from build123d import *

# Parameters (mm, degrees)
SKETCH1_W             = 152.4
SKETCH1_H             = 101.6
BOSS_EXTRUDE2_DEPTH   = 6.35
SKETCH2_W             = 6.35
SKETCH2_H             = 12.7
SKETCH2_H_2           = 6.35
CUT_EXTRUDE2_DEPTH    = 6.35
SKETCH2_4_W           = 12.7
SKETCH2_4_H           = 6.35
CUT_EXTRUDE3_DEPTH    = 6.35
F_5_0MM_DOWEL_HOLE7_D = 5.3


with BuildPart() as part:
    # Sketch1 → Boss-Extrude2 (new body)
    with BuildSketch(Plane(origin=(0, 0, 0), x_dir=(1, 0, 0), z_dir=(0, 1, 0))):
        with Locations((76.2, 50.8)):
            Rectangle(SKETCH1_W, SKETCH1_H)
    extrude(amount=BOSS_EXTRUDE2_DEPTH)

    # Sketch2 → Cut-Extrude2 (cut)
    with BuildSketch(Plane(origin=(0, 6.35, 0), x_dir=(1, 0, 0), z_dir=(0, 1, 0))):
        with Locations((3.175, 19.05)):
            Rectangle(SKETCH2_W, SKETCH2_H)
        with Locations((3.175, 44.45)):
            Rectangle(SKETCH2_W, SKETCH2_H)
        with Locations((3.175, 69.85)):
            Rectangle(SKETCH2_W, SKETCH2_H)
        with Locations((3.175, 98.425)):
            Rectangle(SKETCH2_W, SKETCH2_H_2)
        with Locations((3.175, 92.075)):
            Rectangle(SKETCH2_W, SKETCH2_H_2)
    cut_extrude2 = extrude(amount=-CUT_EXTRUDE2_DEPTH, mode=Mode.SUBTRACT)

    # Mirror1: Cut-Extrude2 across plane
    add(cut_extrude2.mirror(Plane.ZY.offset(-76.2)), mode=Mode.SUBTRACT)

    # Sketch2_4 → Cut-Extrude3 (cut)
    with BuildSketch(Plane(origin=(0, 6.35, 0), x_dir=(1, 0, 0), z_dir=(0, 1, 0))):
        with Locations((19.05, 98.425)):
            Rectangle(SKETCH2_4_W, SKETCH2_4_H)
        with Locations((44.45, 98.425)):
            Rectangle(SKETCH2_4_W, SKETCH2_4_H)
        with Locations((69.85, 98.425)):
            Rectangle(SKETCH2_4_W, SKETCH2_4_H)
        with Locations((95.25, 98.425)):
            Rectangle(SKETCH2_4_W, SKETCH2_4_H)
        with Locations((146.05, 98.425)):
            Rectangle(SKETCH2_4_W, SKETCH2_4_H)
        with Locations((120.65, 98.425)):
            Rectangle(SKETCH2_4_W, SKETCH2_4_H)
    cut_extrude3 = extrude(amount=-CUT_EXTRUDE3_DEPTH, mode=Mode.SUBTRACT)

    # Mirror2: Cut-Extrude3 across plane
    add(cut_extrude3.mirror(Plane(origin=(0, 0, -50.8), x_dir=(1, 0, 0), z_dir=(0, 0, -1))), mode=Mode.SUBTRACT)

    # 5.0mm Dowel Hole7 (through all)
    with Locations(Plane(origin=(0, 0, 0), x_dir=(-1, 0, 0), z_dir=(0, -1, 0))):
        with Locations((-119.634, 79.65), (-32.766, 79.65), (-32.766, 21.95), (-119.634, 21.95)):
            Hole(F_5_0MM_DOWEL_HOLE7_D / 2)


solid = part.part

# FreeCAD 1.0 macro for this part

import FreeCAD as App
import Part
import Sketcher

V = App.Vector
Q = App.Units.Quantity


def add_polygon(sketch, points):
    """Adds a closed chain of lines whose ends are joined by coincident constraints."""
    first, n = sketch.GeometryCount, len(points)
    for a, b in zip(points, points[1:] + points[:1]):
        sketch.addGeometry(Part.LineSegment(App.Vector(*a, 0), App.Vector(*b, 0)), False)
    for i in range(n):
        sketch.addConstraint(Sketcher.Constraint("Coincident", first + i, 2, first + (i + 1) % n, 1))

doc = App.newDocument("Part")
params = doc.addObject("Spreadsheet::Sheet", "Params")
for row, (alias, value) in enumerate([
    ("sketch1_width", "6 in"),
    ("sketch1_height", "4 in"),
    ("pad1_length", "0.25 in"),
    ("sketch2_height", "0.5 in"),
    ("sketch2_width", "0.25 in"),
    ("pocket1_length", "0.25 in"),
    ("sketch3_width", "0.5 in"),
    ("sketch3_height", "0.25 in"),
    ("pocket2_length", "0.25 in"),
    ("hole_diameter", "5.3 mm"),
], start=1):
    params.set(f"A{row}", alias)
    params.set(f"B{row}", "=" + value)
    params.setAlias(f"B{row}", alias)

body = doc.addObject("PartDesign::Body", "Body")

sketch1 = body.newObject("Sketcher::SketchObject", "Sketch")
sketch1.AttachmentSupport = (doc.getObject("XZ_Plane"), [""])
sketch1.MapMode = "FlatFace"
add_polygon(sketch1, [(0, -102), (0, 0), (152, 0), (152, -102)])
sketch1.addConstraint(Sketcher.Constraint("Vertical", 0))
sketch1.addConstraint(Sketcher.Constraint("Horizontal", 1))
sketch1.addConstraint(Sketcher.Constraint("Vertical", 2))
sketch1.addConstraint(Sketcher.Constraint("Horizontal", 3))
sketch1.addConstraint(Sketcher.Constraint("Coincident", 0, 2, -1, 1))
sketch1.addConstraint(Sketcher.Constraint("DistanceX", 1, 1, 1, 2, Q("6 in")))
sketch1.addConstraint(Sketcher.Constraint("DistanceY", 0, 1, 0, 2, Q("4 in")))
sketch1.setExpression("Constraints[9]", "Params.sketch1_width")
sketch1.setExpression("Constraints[10]", "Params.sketch1_height")
pad1 = body.newObject("PartDesign::Pad", "Pad")
pad1.Profile = sketch1
pad1.setExpression("Length", "Params.pad1_length")
pad1.Reversed = True

sketch2 = body.newObject("Sketcher::SketchObject", "Sketch001")
sketch2.AttachmentSupport = (doc.getObject("XZ_Plane"), [""])
sketch2.MapMode = "FlatFace"
sketch2.AttachmentOffset = App.Placement(V(0, 0, -0.25 * 25.4), App.Rotation())
add_polygon(sketch2, [(0, -25), (0, -13), (6, -13), (6, -25)])
add_polygon(sketch2, [(0, -51), (0, -38), (6, -38), (6, -51)])
add_polygon(sketch2, [(0, -76), (0, -64), (6, -64), (6, -76)])
add_polygon(sketch2, [(0, -102), (0, -89), (6, -89), (6, -102)])
sketch2.addConstraint(Sketcher.Constraint("Vertical", 0))
sketch2.addConstraint(Sketcher.Constraint("Horizontal", 1))
sketch2.addConstraint(Sketcher.Constraint("Vertical", 2))
sketch2.addConstraint(Sketcher.Constraint("Horizontal", 3))
sketch2.addConstraint(Sketcher.Constraint("Vertical", 4))
sketch2.addConstraint(Sketcher.Constraint("Horizontal", 5))
sketch2.addConstraint(Sketcher.Constraint("Vertical", 6))
sketch2.addConstraint(Sketcher.Constraint("Horizontal", 7))
sketch2.addConstraint(Sketcher.Constraint("Vertical", 8))
sketch2.addConstraint(Sketcher.Constraint("Horizontal", 9))
sketch2.addConstraint(Sketcher.Constraint("Vertical", 10))
sketch2.addConstraint(Sketcher.Constraint("Horizontal", 11))
sketch2.addConstraint(Sketcher.Constraint("Vertical", 12))
sketch2.addConstraint(Sketcher.Constraint("Horizontal", 13))
sketch2.addConstraint(Sketcher.Constraint("Vertical", 14))
sketch2.addConstraint(Sketcher.Constraint("Horizontal", 15))
sketch2.addConstraint(Sketcher.Constraint("PointOnObject", 0, 2, -2))
sketch2.addConstraint(Sketcher.Constraint("PointOnObject", 4, 2, -2))
sketch2.addConstraint(Sketcher.Constraint("PointOnObject", 8, 2, -2))
sketch2.addConstraint(Sketcher.Constraint("PointOnObject", 12, 2, -2))
sketch2.addConstraint(Sketcher.Constraint("Vertical", 2, 2, 5, 2))
sketch2.addConstraint(Sketcher.Constraint("Vertical", 6, 2, 9, 2))
sketch2.addConstraint(Sketcher.Constraint("Vertical", 10, 2, 13, 2))
sketch2.addConstraint(Sketcher.Constraint("Equal", 2, 4))
sketch2.addConstraint(Sketcher.Constraint("Equal", 6, 8))
sketch2.addConstraint(Sketcher.Constraint("Equal", 10, 12))
sketch2.addConstraint(Sketcher.Constraint("DistanceY", 0, 1, 0, 2, Q("0.5 in")))
sketch2.addConstraint(Sketcher.Constraint("DistanceY", 2, 2, -1, 1, Q("1 in")))
sketch2.addConstraint(Sketcher.Constraint("DistanceY", 6, 2, -1, 1, Q("2 in")))
sketch2.addConstraint(Sketcher.Constraint("DistanceY", 10, 2, -1, 1, Q("3 in")))
sketch2.addConstraint(Sketcher.Constraint("DistanceY", 14, 2, -1, 1, Q("4 in")))
sketch2.addConstraint(Sketcher.Constraint("DistanceX", 1, 1, 1, 2, Q("0.25 in")))
sketch2.setExpression("Constraints[42]", "Params.sketch2_height")
sketch2.setExpression("Constraints[47]", "Params.sketch2_width")
pocket1 = body.newObject("PartDesign::Pocket", "Pocket")
pocket1.Profile = sketch2
pocket1.setExpression("Length", "Params.pocket1_length")
pocket1.Reversed = True
doc.recompute()

datumplane = body.newObject("PartDesign::Plane", "DatumPlane")
datumplane.AttachmentSupport = (doc.getObject("YZ_Plane"), [""])
datumplane.MapMode = "FlatFace"
datumplane.AttachmentOffset = App.Placement(V(0, 0, 3 * 25.4), App.Rotation())
mirrored = body.newObject("PartDesign::Mirrored", "Mirrored")
mirrored.Originals = [pocket1]
mirrored.MirrorPlane = (datumplane, [""])
body.Tip = mirrored

sketch3 = body.newObject("Sketcher::SketchObject", "Sketch002")
sketch3.AttachmentSupport = (doc.getObject("XZ_Plane"), [""])
sketch3.MapMode = "FlatFace"
sketch3.AttachmentOffset = App.Placement(V(0, 0, -0.25 * 25.4), App.Rotation())
add_polygon(sketch3, [(13, -102), (13, -95), (25, -95), (25, -102)])
add_polygon(sketch3, [(38, -102), (38, -95), (51, -95), (51, -102)])
add_polygon(sketch3, [(64, -102), (64, -95), (76, -95), (76, -102)])
add_polygon(sketch3, [(89, -102), (89, -95), (102, -95), (102, -102)])
add_polygon(sketch3, [(140, -102), (140, -95), (152, -95), (152, -102)])
add_polygon(sketch3, [(114, -102), (114, -95), (127, -95), (127, -102)])
sketch3.addConstraint(Sketcher.Constraint("Vertical", 0))
sketch3.addConstraint(Sketcher.Constraint("Horizontal", 1))
sketch3.addConstraint(Sketcher.Constraint("Vertical", 2))
sketch3.addConstraint(Sketcher.Constraint("Horizontal", 3))
sketch3.addConstraint(Sketcher.Constraint("Vertical", 4))
sketch3.addConstraint(Sketcher.Constraint("Horizontal", 5))
sketch3.addConstraint(Sketcher.Constraint("Vertical", 6))
sketch3.addConstraint(Sketcher.Constraint("Horizontal", 7))
sketch3.addConstraint(Sketcher.Constraint("Vertical", 8))
sketch3.addConstraint(Sketcher.Constraint("Horizontal", 9))
sketch3.addConstraint(Sketcher.Constraint("Vertical", 10))
sketch3.addConstraint(Sketcher.Constraint("Horizontal", 11))
sketch3.addConstraint(Sketcher.Constraint("Vertical", 12))
sketch3.addConstraint(Sketcher.Constraint("Horizontal", 13))
sketch3.addConstraint(Sketcher.Constraint("Vertical", 14))
sketch3.addConstraint(Sketcher.Constraint("Horizontal", 15))
sketch3.addConstraint(Sketcher.Constraint("Vertical", 16))
sketch3.addConstraint(Sketcher.Constraint("Horizontal", 17))
sketch3.addConstraint(Sketcher.Constraint("Vertical", 18))
sketch3.addConstraint(Sketcher.Constraint("Horizontal", 19))
sketch3.addConstraint(Sketcher.Constraint("Vertical", 20))
sketch3.addConstraint(Sketcher.Constraint("Horizontal", 21))
sketch3.addConstraint(Sketcher.Constraint("Vertical", 22))
sketch3.addConstraint(Sketcher.Constraint("Horizontal", 23))
sketch3.addConstraint(Sketcher.Constraint("Horizontal", 1, 2, 4, 2))
sketch3.addConstraint(Sketcher.Constraint("Horizontal", 3, 2, 6, 2))
sketch3.addConstraint(Sketcher.Constraint("Horizontal", 5, 2, 8, 2))
sketch3.addConstraint(Sketcher.Constraint("Horizontal", 7, 2, 10, 2))
sketch3.addConstraint(Sketcher.Constraint("Horizontal", 9, 2, 12, 2))
sketch3.addConstraint(Sketcher.Constraint("Horizontal", 11, 2, 14, 2))
sketch3.addConstraint(Sketcher.Constraint("Horizontal", 13, 2, 16, 2))
sketch3.addConstraint(Sketcher.Constraint("Horizontal", 15, 2, 18, 2))
sketch3.addConstraint(Sketcher.Constraint("Horizontal", 17, 2, 20, 2))
sketch3.addConstraint(Sketcher.Constraint("Horizontal", 19, 2, 22, 2))
sketch3.addConstraint(Sketcher.Constraint("Equal", 3, 5))
sketch3.addConstraint(Sketcher.Constraint("Equal", 7, 9))
sketch3.addConstraint(Sketcher.Constraint("Equal", 11, 13))
sketch3.addConstraint(Sketcher.Constraint("Equal", 15, 17))
sketch3.addConstraint(Sketcher.Constraint("Equal", 19, 21))
sketch3.addConstraint(Sketcher.Constraint("DistanceX", 1, 1, 1, 2, Q("0.5 in")))
sketch3.addConstraint(Sketcher.Constraint("DistanceX", -1, 1, 1, 2, Q("1 in")))
sketch3.addConstraint(Sketcher.Constraint("DistanceY", 2, 2, -1, 1, Q("4 in")))
sketch3.addConstraint(Sketcher.Constraint("DistanceX", -1, 1, 5, 2, Q("2 in")))
sketch3.addConstraint(Sketcher.Constraint("DistanceX", -1, 1, 9, 2, Q("3 in")))
sketch3.addConstraint(Sketcher.Constraint("DistanceX", -1, 1, 13, 2, Q("4 in")))
sketch3.addConstraint(Sketcher.Constraint("DistanceX", -1, 1, 17, 2, Q("6 in")))
sketch3.addConstraint(Sketcher.Constraint("DistanceX", -1, 1, 21, 2, Q("5 in")))
sketch3.addConstraint(Sketcher.Constraint("DistanceY", 0, 1, 0, 2, Q("0.25 in")))
sketch3.setExpression("Constraints[63]", "Params.sketch3_width")
sketch3.setExpression("Constraints[71]", "Params.sketch3_height")
pocket2 = body.newObject("PartDesign::Pocket", "Pocket001")
pocket2.Profile = sketch3
pocket2.setExpression("Length", "Params.pocket2_length")
pocket2.Reversed = True
doc.recompute()

datumplane2 = body.newObject("PartDesign::Plane", "DatumPlane001")
datumplane2.AttachmentSupport = (doc.getObject("XY_Plane"), [""])
datumplane2.MapMode = "FlatFace"
datumplane2.AttachmentOffset = App.Placement(V(0, 0, -2 * 25.4), App.Rotation())
mirrored2 = body.newObject("PartDesign::Mirrored", "Mirrored001")
mirrored2.Originals = [pocket2]
mirrored2.MirrorPlane = (datumplane2, [""])
body.Tip = mirrored2

sketch4 = body.newObject("Sketcher::SketchObject", "Sketch003")
sketch4.AttachmentSupport = (doc.getObject("XZ_Plane"), [""])
sketch4.MapMode = "FlatFace"
sketch4.addGeometry(Part.Circle(V(119.6, -79.7, 0), V(0, 0, 1), 2.6), False)
sketch4.addGeometry(Part.Circle(V(32.8, -79.7, 0), V(0, 0, 1), 2.6), False)
sketch4.addGeometry(Part.Circle(V(32.8, -21.9, 0), V(0, 0, 1), 2.6), False)
sketch4.addGeometry(Part.Circle(V(119.6, -21.9, 0), V(0, 0, 1), 2.6), False)
sketch4.addConstraint(Sketcher.Constraint("Equal", 0, 1))
sketch4.addConstraint(Sketcher.Constraint("Equal", 1, 2))
sketch4.addConstraint(Sketcher.Constraint("Equal", 2, 3))
sketch4.addConstraint(Sketcher.Constraint("Horizontal", 0, 3, 1, 3))
sketch4.addConstraint(Sketcher.Constraint("Horizontal", 2, 3, 3, 3))
sketch4.addConstraint(Sketcher.Constraint("Vertical", 1, 3, 2, 3))
sketch4.addConstraint(Sketcher.Constraint("Vertical", 0, 3, 3, 3))
sketch4.addConstraint(Sketcher.Constraint("Diameter", 0, 5.3))
sketch4.addConstraint(Sketcher.Constraint("DistanceX", -1, 1, 0, 3, Q("4.71 in")))
sketch4.addConstraint(Sketcher.Constraint("DistanceX", -1, 1, 1, 3, Q("1.29 in")))
sketch4.addConstraint(Sketcher.Constraint("DistanceY", 0, 3, -1, 1, 79.65))
sketch4.addConstraint(Sketcher.Constraint("DistanceY", 2, 3, -1, 1, 21.95))
doc.recompute()
hole = body.newObject("PartDesign::Hole", "Hole")
hole.Profile = sketch4
hole.ThreadType = "None"
hole.setExpression("Diameter", "Params.hole_diameter")
hole.DepthType = "ThroughAll"

doc.recompute()
